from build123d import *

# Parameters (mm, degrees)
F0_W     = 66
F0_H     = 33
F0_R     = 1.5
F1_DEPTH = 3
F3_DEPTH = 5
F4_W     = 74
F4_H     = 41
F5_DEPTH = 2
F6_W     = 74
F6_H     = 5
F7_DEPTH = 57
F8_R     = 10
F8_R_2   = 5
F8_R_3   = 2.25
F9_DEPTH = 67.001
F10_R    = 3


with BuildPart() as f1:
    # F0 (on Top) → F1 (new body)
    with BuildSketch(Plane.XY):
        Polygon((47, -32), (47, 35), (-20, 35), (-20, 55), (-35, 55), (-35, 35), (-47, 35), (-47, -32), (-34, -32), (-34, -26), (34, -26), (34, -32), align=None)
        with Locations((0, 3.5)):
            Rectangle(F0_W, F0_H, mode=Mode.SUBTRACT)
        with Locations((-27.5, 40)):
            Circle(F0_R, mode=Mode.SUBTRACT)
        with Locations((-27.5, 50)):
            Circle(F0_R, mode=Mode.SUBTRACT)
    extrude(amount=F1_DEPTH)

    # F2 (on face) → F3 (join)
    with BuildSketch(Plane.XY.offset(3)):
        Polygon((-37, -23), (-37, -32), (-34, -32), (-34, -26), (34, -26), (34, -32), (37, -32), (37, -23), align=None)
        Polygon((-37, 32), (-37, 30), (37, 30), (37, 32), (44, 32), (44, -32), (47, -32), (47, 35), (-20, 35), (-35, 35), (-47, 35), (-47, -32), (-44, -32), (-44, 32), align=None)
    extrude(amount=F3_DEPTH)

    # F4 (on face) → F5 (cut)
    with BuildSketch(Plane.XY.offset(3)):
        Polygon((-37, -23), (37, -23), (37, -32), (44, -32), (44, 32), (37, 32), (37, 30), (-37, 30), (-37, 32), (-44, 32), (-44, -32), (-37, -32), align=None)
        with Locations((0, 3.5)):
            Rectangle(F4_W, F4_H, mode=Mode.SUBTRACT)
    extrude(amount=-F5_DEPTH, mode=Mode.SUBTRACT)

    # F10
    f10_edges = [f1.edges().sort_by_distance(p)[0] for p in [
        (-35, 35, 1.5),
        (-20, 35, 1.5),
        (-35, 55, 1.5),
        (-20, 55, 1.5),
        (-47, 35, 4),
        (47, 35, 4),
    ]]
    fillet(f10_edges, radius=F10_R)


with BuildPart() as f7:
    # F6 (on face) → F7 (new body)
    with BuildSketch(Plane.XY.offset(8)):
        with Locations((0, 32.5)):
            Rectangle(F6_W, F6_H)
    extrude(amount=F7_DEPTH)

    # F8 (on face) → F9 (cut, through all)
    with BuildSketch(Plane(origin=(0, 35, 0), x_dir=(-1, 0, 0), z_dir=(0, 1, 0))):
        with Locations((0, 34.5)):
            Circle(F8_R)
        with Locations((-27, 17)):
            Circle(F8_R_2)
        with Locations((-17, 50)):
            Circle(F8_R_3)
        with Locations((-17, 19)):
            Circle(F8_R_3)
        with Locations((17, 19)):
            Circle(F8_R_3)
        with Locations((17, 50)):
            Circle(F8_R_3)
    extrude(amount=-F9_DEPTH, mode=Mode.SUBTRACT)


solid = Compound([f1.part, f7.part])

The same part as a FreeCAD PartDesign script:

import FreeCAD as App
import Part
import Sketcher

V = App.Vector


def edges_at(feature, points):
    """Names of the edges that pass closest to the given points."""
    edges = feature.Shape.Edges
    near = lambda p: min(range(len(edges)), key=lambda i: edges[i].distToShape(Part.Vertex(*p))[0])
    return sorted({f"Edge{near(p) + 1}" for p in points})


def add_polygon(sketch, points):
    """Adds a closed chain of lines whose ends are joined by coincident constraints."""
    first, n = sketch.GeometryCount, len(points)
    for a, b in zip(points, points[1:] + points[:1]):
        sketch.addGeometry(Part.LineSegment(App.Vector(*a, 0), App.Vector(*b, 0)), False)
    for i in range(n):
        sketch.addConstraint(Sketcher.Constraint("Coincident", first + i, 2, first + (i + 1) % n, 1))

doc = App.newDocument("Part")
params = doc.addObject("Spreadsheet::Sheet", "Params")
for row, (alias, value) in enumerate([
    ("sketch1_diameter", "3 mm"),
    ("sketch1_width", "67 mm"),
    ("sketch1_width2", "15 mm"),
    ("sketch1_width3", "12 mm"),
    ("sketch1_width4", "13 mm"),
    ("pad1_length", "3 mm"),
    ("sketch2_width", "3 mm"),
    ("sketch2_width2", "68 mm"),
    ("sketch2_width3", "7 mm"),
    ("sketch2_height", "9 mm"),
    ("sketch2_height2", "6 mm"),
    ("pad2_length", "5 mm"),
    ("sketch3_width", "74 mm"),
    ("sketch3_width2", "7 mm"),
    ("sketch3_height", "9 mm"),
    ("sketch3_height2", "64 mm"),
    ("sketch3_height3", "2 mm"),
    ("pocket1_length", "2 mm"),
    ("fillet_radius", "3 mm"),
    ("sketch4_width", "74 mm"),
    ("sketch4_height", "5 mm"),
    ("pad3_length", "57 mm"),
    ("sketch5_diameter", "20 mm"),
    ("sketch5_diameter2", "10 mm"),
    ("sketch5_diameter3", "4.5 mm"),
], start=1):
    params.set(f"A{row}", alias)
    params.set(f"B{row}", "=" + value)
    params.setAlias(f"B{row}", alias)

body = doc.addObject("PartDesign::Body", "Body")

# Sketch on XY plane
sketch1 = body.newObject("Sketcher::SketchObject", "Sketch")
sketch1.AttachmentSupport = (doc.getObject("XY_Plane"), [""])
sketch1.MapMode = "FlatFace"
add_polygon(sketch1, [(47, -32), (47, 35), (-20, 35), (-20, 55), (-35, 55), (-35, 35), (-47, 35), (-47, -32), (-34, -32), (-34, -26), (34, -26), (34, -32)])  # lines 0-11
add_polygon(sketch1, [(33, -13), (-33, -13), (-33, 20), (33, 20)])  # lines 12-15
sketch1.addGeometry(Part.Circle(V(-27.5, 40, 0), V(0, 0, 1), 1.5), False)  # 16
sketch1.addGeometry(Part.Circle(V(-27.5, 50, 0), V(0, 0, 1), 1.5), False)  # 17
sketch1.addConstraint([
    Sketcher.Constraint("Vertical", 0),
    Sketcher.Constraint("Horizontal", 1),
    Sketcher.Constraint("Vertical", 2),
    Sketcher.Constraint("Horizontal", 3),
    Sketcher.Constraint("Vertical", 4),
    Sketcher.Constraint("Horizontal", 5),
    Sketcher.Constraint("Vertical", 6),
    Sketcher.Constraint("Horizontal", 7),
    Sketcher.Constraint("Vertical", 8),
    Sketcher.Constraint("Horizontal", 9),
    Sketcher.Constraint("Vertical", 10),
    Sketcher.Constraint("Horizontal", 11),
    Sketcher.Constraint("Horizontal", 12),
    Sketcher.Constraint("Vertical", 13),
    Sketcher.Constraint("Horizontal", 14),
    Sketcher.Constraint("Vertical", 15),
    Sketcher.Constraint("Equal", 16, 17),
    Sketcher.Constraint("Symmetric", 0, 2, 5, 2, -2),
    Sketcher.Constraint("Symmetric", 7, 2, 10, 2, -2),
    Sketcher.Constraint("Vertical", 16, 3, 17, 3),
    Sketcher.Constraint("Equal", 1, 0),
    Sketcher.Constraint("Diameter", 16, 3.0),
    Sketcher.Constraint("DistanceX", 1, 2, 1, 1, 67.0),
    Sketcher.Constraint("DistanceX", 3, 2, 3, 1, 15.0),
    Sketcher.Constraint("DistanceX", 5, 2, 5, 1, 12.0),
    Sketcher.Constraint("DistanceX", 7, 1, 7, 2, 13.0),
    Sketcher.Constraint("DistanceX", 12, 2, 12, 1, 66.0),
    Sketcher.Constraint("DistanceY", 2, 1, 2, 2, 20.0),
    Sketcher.Constraint("DistanceY", 8, 1, 8, 2, 6.0),
    Sketcher.Constraint("DistanceY", 13, 1, 13, 2, 33.0),
    Sketcher.Constraint("DistanceY", -1, 1, 16, 3, 40.0),
    Sketcher.Constraint("DistanceY", -1, 1, 17, 3, 50.0),
    Sketcher.Constraint("DistanceY", -1, 1, 0, 2, 35.0),
    Sketcher.Constraint("DistanceX", 12, 2, -1, 1, 33.0),
    Sketcher.Constraint("DistanceY", 12, 2, -1, 1, 13.0),
    Sketcher.Constraint("DistanceX", 16, 3, -1, 1, 27.5),
])
sketch1.setExpression("Constraints[37]", "Params.sketch1_diameter")
sketch1.setExpression("Constraints[38]", "Params.sketch1_width")
sketch1.setExpression("Constraints[39]", "Params.sketch1_width2")
sketch1.setExpression("Constraints[40]", "Params.sketch1_width3")
sketch1.setExpression("Constraints[41]", "Params.sketch1_width4")
pad1 = body.newObject("PartDesign::Pad", "Pad")
pad1.Profile = sketch1
pad1.setExpression("Length", "Params.pad1_length")

# Sketch on XY plane
sketch2 = body.newObject("Sketcher::SketchObject", "Sketch001")
sketch2.AttachmentSupport = (doc.getObject("XY_Plane"), [""])
sketch2.MapMode = "FlatFace"
sketch2.AttachmentOffset = App.Placement(V(0, 0, 3), App.Rotation())
add_polygon(sketch2, [(-37, -23), (-37, -32), (-34, -32), (-34, -26), (34, -26), (34, -32), (37, -32), (37, -23)])  # lines 0-7
add_polygon(sketch2, [(-37, 32), (-37, 30), (37, 30), (37, 32), (44, 32), (44, -32), (47, -32), (47, 35), (-47, 35), (-47, -32), (-44, -32), (-44, 32)])  # lines 8-19
sketch2.addConstraint([
    Sketcher.Constraint("Vertical", 0),
    Sketcher.Constraint("Horizontal", 1),
    Sketcher.Constraint("Vertical", 2),
    Sketcher.Constraint("Horizontal", 3),
    Sketcher.Constraint("Vertical", 4),
    Sketcher.Constraint("Horizontal", 5),
    Sketcher.Constraint("Vertical", 6),
    Sketcher.Constraint("Horizontal", 7),
    Sketcher.Constraint("Vertical", 8),
    Sketcher.Constraint("Horizontal", 9),
    Sketcher.Constraint("Vertical", 10),
    Sketcher.Constraint("Horizontal", 11),
    Sketcher.Constraint("Vertical", 12),
    Sketcher.Constraint("Horizontal", 13),
    Sketcher.Constraint("Vertical", 14),
    Sketcher.Constraint("Horizontal", 15),
    Sketcher.Constraint("Vertical", 16),
    Sketcher.Constraint("Horizontal", 17),
    Sketcher.Constraint("Vertical", 18),
    Sketcher.Constraint("Horizontal", 19),
    Sketcher.Constraint("Symmetric", 0, 2, 10, 2, -1, 1),
    Sketcher.Constraint("Symmetric", 11, 2, 17, 2, -1, 1),
    Sketcher.Constraint("Symmetric", 5, 2, 19, 2, -1, 1),
    Sketcher.Constraint("Symmetric", 1, 2, 4, 2, -2),
    Sketcher.Constraint("Symmetric", 13, 2, 16, 2, -2),
    Sketcher.Constraint("Vertical", 7, 2, 8, 2),
    Sketcher.Constraint("Equal", 5, 13),
    Sketcher.Constraint("DistanceX", 1, 1, 1, 2, 3.0),
    Sketcher.Constraint("DistanceX", 3, 1, 3, 2, 68.0),
    Sketcher.Constraint("DistanceX", 11, 1, 11, 2, 7.0),
    Sketcher.Constraint("DistanceY", 0, 2, 0, 1, 9.0),
    Sketcher.Constraint("DistanceY", 2, 1, 2, 2, 6.0),
    Sketcher.Constraint("DistanceY", 8, 2, 8, 1, 2.0),
    Sketcher.Constraint("DistanceY", 12, 2, 12, 1, 64.0),
    Sketcher.Constraint("DistanceY", 14, 1, 14, 2, 67.0),
])
sketch2.setExpression("Constraints[47]", "Params.sketch2_width")
sketch2.setExpression("Constraints[48]", "Params.sketch2_width2")
sketch2.setExpression("Constraints[49]", "Params.sketch2_width3")
sketch2.setExpression("Constraints[50]", "Params.sketch2_height")
sketch2.setExpression("Constraints[51]", "Params.sketch2_height2")
pad2 = body.newObject("PartDesign::Pad", "Pad001")
pad2.Profile = sketch2
pad2.setExpression("Length", "Params.pad2_length")

# Sketch on XY plane
sketch3 = body.newObject("Sketcher::SketchObject", "Sketch002")
sketch3.AttachmentSupport = (doc.getObject("XY_Plane"), [""])
sketch3.MapMode = "FlatFace"
sketch3.AttachmentOffset = App.Placement(V(0, 0, 3), App.Rotation())
add_polygon(sketch3, [(-37, -23), (37, -23), (37, -32), (44, -32), (44, 32), (37, 32), (37, 30), (-37, 30), (-37, 32), (-44, 32), (-44, -32), (-37, -32)])  # lines 0-11
add_polygon(sketch3, [(37, -17), (-37, -17), (-37, 24), (37, 24)])  # lines 12-15
sketch3.addConstraint([
    Sketcher.Constraint("Horizontal", 0),
    Sketcher.Constraint("Vertical", 1),
    Sketcher.Constraint("Horizontal", 2),
    Sketcher.Constraint("Vertical", 3),
    Sketcher.Constraint("Horizontal", 4),
    Sketcher.Constraint("Vertical", 5),
    Sketcher.Constraint("Horizontal", 6),
    Sketcher.Constraint("Vertical", 7),
    Sketcher.Constraint("Horizontal", 8),
    Sketcher.Constraint("Vertical", 9),
    Sketcher.Constraint("Horizontal", 10),
    Sketcher.Constraint("Vertical", 11),
    Sketcher.Constraint("Horizontal", 12),
    Sketcher.Constraint("Vertical", 13),
    Sketcher.Constraint("Horizontal", 14),
    Sketcher.Constraint("Vertical", 15),
    Sketcher.Constraint("Symmetric", 1, 2, 7, 2, -1, 1),
    Sketcher.Constraint("Symmetric", 3, 2, 9, 2, -1, 1),
    Sketcher.Constraint("Symmetric", 4, 2, 7, 2, -2),
    Sketcher.Constraint("Vertical", 7, 2, 10, 2),
    Sketcher.Constraint("Vertical", 11, 2, 12, 2),
    Sketcher.Constraint("Vertical", 5, 2, 14, 2),
    Sketcher.Constraint("DistanceX", 0, 1, 0, 2, 74.0),
    Sketcher.Constraint("DistanceX", 2, 1, 2, 2, 7.0),
    Sketcher.Constraint("DistanceY", 1, 2, 1, 1, 9.0),
    Sketcher.Constraint("DistanceY", 3, 1, 3, 2, 64.0),
    Sketcher.Constraint("DistanceY", 5, 2, 5, 1, 2.0),
    Sketcher.Constraint("DistanceY", 13, 1, 13, 2, 41.0),
    Sketcher.Constraint("DistanceY", 12, 2, -1, 1, 17.0),
])
sketch3.setExpression("Constraints[38]", "Params.sketch3_width")
sketch3.setExpression("Constraints[39]", "Params.sketch3_width2")
sketch3.setExpression("Constraints[40]", "Params.sketch3_height")
sketch3.setExpression("Constraints[41]", "Params.sketch3_height2")
sketch3.setExpression("Constraints[42]", "Params.sketch3_height3")
pocket1 = body.newObject("PartDesign::Pocket", "Pocket")
pocket1.Profile = sketch3
pocket1.setExpression("Length", "Params.pocket1_length")
doc.recompute()

fillet = body.newObject("PartDesign::Fillet", "Fillet")
fillet.Base = (pocket1, edges_at(pocket1, [
    (-35, 35, 1.5),
    (-20, 35, 1.5),
    (-35, 55, 1.5),
    (-20, 55, 1.5),
    (-47, 35, 4),
    (47, 35, 4),
]))
fillet.setExpression("Radius", "Params.fillet_radius")
body2 = doc.addObject("PartDesign::Body", "Body001")

# Sketch on XY plane
sketch4 = body2.newObject("Sketcher::SketchObject", "Sketch003")
sketch4.AttachmentSupport = (doc.getObject("XY_Plane001"), [""])
sketch4.MapMode = "FlatFace"
sketch4.AttachmentOffset = App.Placement(V(0, 0, 8), App.Rotation())
add_polygon(sketch4, [(-37, 35), (-37, 30), (37, 30), (37, 35)])  # lines 0-3
sketch4.addConstraint([
    Sketcher.Constraint("Vertical", 0),
    Sketcher.Constraint("Horizontal", 1),
    Sketcher.Constraint("Vertical", 2),
    Sketcher.Constraint("Horizontal", 3),
    Sketcher.Constraint("DistanceX", 1, 1, 1, 2, 74.0),
    Sketcher.Constraint("DistanceY", 0, 2, 0, 1, 5.0),
    Sketcher.Constraint("DistanceX", 0, 2, -1, 1, 37.0),
    Sketcher.Constraint("DistanceY", -1, 1, 0, 2, 30.0),
])
sketch4.setExpression("Constraints[8]", "Params.sketch4_width")
sketch4.setExpression("Constraints[9]", "Params.sketch4_height")
pad3 = body2.newObject("PartDesign::Pad", "Pad002")
pad3.Profile = sketch4
pad3.setExpression("Length", "Params.pad3_length")

# Sketch on XZ plane
sketch5 = body2.newObject("Sketcher::SketchObject", "Sketch004")
sketch5.AttachmentSupport = (doc.getObject("XZ_Plane001"), [""])
sketch5.MapMode = "FlatFace"
sketch5.AttachmentOffset = App.Placement(V(0, 0, -35), App.Rotation())
sketch5.addGeometry([
    Part.Circle(V(0, 34.5, 0), V(0, 0, 1), 10),  # 0
    Part.Circle(V(27, 17, 0), V(0, 0, 1), 5),  # 1
    Part.Circle(V(17, 50, 0), V(0, 0, 1), 2.2),  # 2
    Part.Circle(V(17, 19, 0), V(0, 0, 1), 2.2),  # 3
    Part.Circle(V(-17, 19, 0), V(0, 0, 1), 2.2),  # 4
    Part.Circle(V(-17, 50, 0), V(0, 0, 1), 2.2),  # 5
], False)
sketch5.addConstraint([
    Sketcher.Constraint("Equal", 2, 3),
    Sketcher.Constraint("Equal", 3, 4),
    Sketcher.Constraint("Equal", 4, 5),
    Sketcher.Constraint("Symmetric", 3, 3, 4, 3, -2),
    Sketcher.Constraint("Symmetric", 2, 3, 5, 3, -2),
    Sketcher.Constraint("PointOnObject", 0, 3, -2),
    Sketcher.Constraint("Vertical", 2, 3, 3, 3),
    Sketcher.Constraint("Diameter", 0, 20.0),
    Sketcher.Constraint("Diameter", 1, 10.0),
    Sketcher.Constraint("Diameter", 2, 4.5),
    Sketcher.Constraint("DistanceX", -1, 1, 1, 3, 27.0),
    Sketcher.Constraint("DistanceY", -1, 1, 1, 3, 17.0),
    Sketcher.Constraint("DistanceX", -1, 1, 2, 3, 17.0),
    Sketcher.Constraint("DistanceY", -1, 1, 2, 3, 50.0),
    Sketcher.Constraint("DistanceY", -1, 1, 3, 3, 19.0),
    Sketcher.Constraint("DistanceY", -1, 1, 0, 3, 34.5),
])
sketch5.setExpression("Constraints[7]", "Params.sketch5_diameter")
sketch5.setExpression("Constraints[8]", "Params.sketch5_diameter2")
sketch5.setExpression("Constraints[9]", "Params.sketch5_diameter3")
pocket2 = body2.newObject("PartDesign::Pocket", "Pocket001")
pocket2.Profile = sketch5
pocket2.Type = "ThroughAll"
pocket2.Reversed = True

doc.recompute()
